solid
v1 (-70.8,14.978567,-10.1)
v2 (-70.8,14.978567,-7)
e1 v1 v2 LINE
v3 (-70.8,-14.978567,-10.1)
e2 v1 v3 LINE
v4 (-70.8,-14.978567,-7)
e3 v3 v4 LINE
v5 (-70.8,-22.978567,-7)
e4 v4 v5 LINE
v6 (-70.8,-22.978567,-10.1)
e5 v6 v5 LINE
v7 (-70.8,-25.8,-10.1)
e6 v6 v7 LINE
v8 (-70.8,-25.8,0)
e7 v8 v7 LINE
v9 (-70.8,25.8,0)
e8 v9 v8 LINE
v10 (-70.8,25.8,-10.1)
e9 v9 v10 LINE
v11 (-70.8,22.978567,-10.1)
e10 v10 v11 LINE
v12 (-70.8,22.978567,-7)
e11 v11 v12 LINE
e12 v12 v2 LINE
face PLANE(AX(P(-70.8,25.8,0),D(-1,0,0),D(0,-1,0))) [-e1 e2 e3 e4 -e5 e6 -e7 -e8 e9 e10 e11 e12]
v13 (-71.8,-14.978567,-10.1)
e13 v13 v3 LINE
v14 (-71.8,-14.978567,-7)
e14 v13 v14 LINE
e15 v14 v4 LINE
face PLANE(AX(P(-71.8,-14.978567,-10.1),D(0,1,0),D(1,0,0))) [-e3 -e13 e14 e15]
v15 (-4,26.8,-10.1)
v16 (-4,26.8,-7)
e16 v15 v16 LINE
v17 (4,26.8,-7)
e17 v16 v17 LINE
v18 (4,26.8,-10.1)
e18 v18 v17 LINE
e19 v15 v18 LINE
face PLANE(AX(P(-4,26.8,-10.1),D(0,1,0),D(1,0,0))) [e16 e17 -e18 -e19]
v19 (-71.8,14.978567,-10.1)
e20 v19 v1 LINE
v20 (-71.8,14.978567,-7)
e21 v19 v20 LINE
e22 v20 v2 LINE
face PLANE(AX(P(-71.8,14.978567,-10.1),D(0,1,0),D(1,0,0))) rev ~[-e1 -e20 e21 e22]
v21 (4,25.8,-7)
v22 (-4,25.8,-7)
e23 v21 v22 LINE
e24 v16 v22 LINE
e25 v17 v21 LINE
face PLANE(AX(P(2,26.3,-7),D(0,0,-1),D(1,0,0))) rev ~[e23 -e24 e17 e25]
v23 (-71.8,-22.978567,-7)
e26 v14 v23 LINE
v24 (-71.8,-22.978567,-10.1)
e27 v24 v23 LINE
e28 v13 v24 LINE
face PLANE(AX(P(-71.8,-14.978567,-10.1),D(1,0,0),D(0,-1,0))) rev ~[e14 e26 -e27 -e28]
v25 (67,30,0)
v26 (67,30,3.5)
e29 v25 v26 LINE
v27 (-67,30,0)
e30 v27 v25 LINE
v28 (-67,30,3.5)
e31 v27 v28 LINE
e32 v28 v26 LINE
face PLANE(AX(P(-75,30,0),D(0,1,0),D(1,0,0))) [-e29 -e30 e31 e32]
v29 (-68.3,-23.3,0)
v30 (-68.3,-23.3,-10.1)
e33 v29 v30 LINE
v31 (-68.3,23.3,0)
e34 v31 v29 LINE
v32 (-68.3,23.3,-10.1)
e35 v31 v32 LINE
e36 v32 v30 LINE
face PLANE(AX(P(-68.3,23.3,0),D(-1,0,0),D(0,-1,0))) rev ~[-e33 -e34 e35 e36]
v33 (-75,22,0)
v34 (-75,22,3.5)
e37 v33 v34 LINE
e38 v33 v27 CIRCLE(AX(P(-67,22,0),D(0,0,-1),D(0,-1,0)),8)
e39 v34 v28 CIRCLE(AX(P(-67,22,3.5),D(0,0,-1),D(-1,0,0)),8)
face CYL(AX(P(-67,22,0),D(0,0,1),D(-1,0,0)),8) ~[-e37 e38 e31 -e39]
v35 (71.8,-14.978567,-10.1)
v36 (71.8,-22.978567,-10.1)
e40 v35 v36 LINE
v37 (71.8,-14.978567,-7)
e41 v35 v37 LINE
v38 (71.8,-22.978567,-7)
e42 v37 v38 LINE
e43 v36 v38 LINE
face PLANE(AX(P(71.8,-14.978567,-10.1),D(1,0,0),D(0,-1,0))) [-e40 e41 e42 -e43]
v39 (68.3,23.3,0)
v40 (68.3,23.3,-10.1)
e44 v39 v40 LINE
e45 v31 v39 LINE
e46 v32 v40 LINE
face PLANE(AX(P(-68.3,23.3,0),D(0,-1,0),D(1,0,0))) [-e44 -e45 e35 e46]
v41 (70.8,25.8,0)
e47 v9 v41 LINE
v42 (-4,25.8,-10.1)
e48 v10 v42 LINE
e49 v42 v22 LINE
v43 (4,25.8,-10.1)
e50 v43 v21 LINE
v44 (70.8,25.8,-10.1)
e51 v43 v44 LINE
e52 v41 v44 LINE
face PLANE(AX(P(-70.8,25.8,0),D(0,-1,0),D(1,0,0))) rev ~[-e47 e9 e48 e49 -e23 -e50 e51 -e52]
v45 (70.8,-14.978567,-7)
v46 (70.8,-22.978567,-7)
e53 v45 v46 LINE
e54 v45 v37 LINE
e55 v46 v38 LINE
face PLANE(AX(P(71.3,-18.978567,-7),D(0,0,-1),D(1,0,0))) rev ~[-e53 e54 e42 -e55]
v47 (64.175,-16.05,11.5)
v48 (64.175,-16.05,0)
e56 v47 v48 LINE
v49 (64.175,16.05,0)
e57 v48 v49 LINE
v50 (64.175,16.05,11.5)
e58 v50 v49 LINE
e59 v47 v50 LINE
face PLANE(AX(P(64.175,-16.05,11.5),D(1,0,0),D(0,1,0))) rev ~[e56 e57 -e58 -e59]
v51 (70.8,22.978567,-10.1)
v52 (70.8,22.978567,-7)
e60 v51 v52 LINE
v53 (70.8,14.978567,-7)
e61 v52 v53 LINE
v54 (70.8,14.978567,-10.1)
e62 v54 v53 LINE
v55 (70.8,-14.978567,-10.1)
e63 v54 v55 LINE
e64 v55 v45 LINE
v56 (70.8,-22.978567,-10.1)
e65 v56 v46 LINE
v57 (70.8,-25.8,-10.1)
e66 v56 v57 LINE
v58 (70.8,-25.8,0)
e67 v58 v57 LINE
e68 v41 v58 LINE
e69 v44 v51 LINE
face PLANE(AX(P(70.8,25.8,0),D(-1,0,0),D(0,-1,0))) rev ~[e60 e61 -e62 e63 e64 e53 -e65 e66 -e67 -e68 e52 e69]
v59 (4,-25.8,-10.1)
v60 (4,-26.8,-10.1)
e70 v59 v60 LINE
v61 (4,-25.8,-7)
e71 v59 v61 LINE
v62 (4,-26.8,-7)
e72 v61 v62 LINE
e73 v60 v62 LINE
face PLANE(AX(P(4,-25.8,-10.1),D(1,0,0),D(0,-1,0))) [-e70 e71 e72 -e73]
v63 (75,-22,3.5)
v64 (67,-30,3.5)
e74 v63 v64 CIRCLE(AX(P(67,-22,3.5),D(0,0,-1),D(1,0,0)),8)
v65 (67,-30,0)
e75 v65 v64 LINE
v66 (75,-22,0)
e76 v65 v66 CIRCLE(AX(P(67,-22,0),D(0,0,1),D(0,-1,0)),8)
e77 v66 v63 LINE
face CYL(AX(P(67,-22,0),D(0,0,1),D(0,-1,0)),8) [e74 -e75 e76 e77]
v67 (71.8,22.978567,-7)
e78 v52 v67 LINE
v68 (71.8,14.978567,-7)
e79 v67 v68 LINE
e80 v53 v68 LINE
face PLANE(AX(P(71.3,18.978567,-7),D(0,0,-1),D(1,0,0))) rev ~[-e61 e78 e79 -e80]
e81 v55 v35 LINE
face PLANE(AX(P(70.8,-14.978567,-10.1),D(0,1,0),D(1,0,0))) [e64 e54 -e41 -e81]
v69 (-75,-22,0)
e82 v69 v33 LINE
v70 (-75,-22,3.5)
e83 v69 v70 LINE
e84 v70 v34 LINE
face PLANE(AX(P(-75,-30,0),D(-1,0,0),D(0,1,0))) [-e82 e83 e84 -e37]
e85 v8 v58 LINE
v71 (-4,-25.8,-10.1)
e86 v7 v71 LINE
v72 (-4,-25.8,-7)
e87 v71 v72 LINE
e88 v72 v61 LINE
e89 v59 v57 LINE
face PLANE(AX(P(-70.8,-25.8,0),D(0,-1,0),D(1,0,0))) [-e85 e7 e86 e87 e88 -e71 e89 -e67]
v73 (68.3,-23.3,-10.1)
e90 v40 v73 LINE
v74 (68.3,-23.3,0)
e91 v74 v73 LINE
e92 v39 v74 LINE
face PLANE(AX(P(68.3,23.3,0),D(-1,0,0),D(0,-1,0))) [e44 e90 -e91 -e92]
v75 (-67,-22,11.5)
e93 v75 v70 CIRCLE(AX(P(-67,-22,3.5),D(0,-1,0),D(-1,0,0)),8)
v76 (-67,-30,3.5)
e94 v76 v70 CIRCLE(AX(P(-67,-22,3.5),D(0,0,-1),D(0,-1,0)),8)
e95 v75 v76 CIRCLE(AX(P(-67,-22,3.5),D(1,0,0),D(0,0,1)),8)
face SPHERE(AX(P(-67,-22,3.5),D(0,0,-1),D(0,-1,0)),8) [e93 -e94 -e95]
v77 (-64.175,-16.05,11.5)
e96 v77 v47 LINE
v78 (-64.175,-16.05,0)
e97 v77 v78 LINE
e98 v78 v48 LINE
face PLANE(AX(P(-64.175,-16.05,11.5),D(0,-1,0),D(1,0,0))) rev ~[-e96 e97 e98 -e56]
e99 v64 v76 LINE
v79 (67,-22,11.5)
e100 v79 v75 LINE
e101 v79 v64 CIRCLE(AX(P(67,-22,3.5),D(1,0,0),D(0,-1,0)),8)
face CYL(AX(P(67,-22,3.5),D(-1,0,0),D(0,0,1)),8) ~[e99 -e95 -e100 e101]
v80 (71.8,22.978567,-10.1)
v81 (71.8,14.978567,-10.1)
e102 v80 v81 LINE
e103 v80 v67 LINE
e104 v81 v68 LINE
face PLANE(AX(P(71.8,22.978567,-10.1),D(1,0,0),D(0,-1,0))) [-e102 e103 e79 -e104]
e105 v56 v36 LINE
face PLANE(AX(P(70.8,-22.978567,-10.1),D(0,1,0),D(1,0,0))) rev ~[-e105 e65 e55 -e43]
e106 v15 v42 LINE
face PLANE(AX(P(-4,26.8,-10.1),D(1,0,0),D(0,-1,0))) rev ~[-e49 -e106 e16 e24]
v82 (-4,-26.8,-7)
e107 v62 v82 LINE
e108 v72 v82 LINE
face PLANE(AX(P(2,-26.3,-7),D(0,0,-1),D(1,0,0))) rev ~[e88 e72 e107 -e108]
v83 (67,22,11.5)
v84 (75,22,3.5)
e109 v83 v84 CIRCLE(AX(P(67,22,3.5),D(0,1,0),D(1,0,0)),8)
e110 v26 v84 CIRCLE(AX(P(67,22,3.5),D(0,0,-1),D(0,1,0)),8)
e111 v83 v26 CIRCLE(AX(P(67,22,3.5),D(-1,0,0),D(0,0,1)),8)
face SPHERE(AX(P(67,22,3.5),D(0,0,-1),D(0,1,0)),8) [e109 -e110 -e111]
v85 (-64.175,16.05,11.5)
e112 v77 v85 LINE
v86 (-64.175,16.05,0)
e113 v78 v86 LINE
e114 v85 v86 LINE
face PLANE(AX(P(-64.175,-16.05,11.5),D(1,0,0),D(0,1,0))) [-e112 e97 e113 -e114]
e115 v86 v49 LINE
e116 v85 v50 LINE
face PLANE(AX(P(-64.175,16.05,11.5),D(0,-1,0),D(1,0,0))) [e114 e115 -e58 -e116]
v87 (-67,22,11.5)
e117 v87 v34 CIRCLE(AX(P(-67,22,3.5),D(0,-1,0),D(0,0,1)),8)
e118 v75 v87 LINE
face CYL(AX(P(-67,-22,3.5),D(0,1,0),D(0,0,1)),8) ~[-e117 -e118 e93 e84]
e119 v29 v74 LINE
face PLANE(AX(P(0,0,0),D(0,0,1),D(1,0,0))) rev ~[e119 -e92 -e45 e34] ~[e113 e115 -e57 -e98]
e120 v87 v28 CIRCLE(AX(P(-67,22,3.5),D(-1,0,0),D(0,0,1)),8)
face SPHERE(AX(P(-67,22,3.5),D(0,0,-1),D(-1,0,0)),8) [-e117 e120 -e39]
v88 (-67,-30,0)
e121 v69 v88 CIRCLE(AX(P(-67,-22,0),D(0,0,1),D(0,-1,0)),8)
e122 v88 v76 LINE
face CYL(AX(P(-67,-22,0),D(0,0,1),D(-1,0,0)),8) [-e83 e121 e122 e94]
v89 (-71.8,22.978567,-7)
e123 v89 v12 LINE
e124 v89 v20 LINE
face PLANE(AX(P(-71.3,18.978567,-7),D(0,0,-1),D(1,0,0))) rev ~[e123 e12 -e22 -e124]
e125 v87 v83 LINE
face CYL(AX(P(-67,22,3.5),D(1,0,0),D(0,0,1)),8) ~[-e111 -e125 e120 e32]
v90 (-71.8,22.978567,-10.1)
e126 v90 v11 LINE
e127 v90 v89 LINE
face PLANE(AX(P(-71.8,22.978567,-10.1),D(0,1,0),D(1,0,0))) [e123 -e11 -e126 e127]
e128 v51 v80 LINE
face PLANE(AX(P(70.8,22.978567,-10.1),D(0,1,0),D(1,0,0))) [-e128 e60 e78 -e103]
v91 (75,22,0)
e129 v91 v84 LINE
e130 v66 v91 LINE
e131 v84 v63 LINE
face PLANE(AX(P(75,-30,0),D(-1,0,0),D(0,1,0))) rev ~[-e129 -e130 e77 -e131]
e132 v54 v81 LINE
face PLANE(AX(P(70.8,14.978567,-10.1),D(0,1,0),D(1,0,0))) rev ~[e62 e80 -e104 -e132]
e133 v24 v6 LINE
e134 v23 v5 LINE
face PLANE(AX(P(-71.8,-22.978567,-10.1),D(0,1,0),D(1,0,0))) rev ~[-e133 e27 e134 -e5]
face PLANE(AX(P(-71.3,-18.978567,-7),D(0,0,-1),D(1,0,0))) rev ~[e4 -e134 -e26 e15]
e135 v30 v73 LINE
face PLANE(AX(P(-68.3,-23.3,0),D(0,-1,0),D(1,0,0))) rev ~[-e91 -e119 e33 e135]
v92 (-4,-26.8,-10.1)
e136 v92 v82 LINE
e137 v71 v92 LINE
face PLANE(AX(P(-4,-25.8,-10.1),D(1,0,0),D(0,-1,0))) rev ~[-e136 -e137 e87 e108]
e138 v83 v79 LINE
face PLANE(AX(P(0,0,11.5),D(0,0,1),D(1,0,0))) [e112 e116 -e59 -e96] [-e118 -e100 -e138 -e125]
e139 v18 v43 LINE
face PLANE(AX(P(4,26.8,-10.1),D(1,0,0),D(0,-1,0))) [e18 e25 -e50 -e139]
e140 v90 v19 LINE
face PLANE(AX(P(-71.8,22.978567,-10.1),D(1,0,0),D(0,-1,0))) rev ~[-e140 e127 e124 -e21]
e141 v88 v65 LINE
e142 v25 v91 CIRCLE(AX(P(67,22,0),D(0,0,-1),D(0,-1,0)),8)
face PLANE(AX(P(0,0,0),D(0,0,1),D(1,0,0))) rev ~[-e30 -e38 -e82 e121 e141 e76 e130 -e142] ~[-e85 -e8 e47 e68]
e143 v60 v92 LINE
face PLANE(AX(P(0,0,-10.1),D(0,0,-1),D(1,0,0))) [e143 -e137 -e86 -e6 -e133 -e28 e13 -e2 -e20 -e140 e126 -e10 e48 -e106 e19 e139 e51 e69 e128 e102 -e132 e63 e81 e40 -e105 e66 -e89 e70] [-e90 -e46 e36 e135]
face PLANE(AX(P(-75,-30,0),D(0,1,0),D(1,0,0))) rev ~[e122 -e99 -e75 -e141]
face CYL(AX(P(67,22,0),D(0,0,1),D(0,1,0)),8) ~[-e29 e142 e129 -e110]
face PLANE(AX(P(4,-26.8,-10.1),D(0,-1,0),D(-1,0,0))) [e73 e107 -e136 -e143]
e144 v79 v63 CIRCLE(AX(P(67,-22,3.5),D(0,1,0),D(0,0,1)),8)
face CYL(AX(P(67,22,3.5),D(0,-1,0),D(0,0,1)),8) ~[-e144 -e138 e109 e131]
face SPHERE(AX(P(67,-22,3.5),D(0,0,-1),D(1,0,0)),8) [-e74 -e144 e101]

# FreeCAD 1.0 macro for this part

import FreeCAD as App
import Part
import Sketcher

V = App.Vector


def edges_at(feature, points):
    """Names of the edges that pass closest to the given points."""
    edges = feature.Shape.Edges
    near = lambda p: min(range(len(edges)), key=lambda i: edges[i].distToShape(Part.Vertex(*p))[0])
    return sorted({f"Edge{near(p) + 1}" for p in points})


def add_polygon(sketch, points):
    """Adds a closed chain of lines whose ends are joined by coincident constraints."""
    first, n = sketch.GeometryCount, len(points)
    for a, b in zip(points, points[1:] + points[:1]):
        sketch.addGeometry(Part.LineSegment(App.Vector(*a, 0), App.Vector(*b, 0)), False)
    for i in range(n):
        sketch.addConstraint(Sketcher.Constraint("Coincident", first + i, 2, first + (i + 1) % n, 1))

doc = App.newDocument("Part")
body = doc.addObject("PartDesign::Body", "Body")

sketch1 = body.newObject("Sketcher::SketchObject", "Sketch")
sketch1.AttachmentSupport = (doc.getObject("XY_Plane"), [""])
sketch1.MapMode = "FlatFace"
add_polygon(sketch1, [(-75, 30), (-75, -30), (75, -30), (75, 30)])
sketch1.addConstraint([
    Sketcher.Constraint("Vertical", 0),
    Sketcher.Constraint("Horizontal", 1),
    Sketcher.Constraint("Vertical", 2),
    Sketcher.Constraint("Horizontal", 3),
    Sketcher.Constraint("Symmetric", 0, 2, 2, 2, -1, 1),
    Sketcher.Constraint("DistanceX", 1, 1, 1, 2, 150.0),
    Sketcher.Constraint("DistanceY", 0, 2, 0, 1, 60.0),
])
pad1 = body.newObject("PartDesign::Pad", "Pad")
pad1.Profile = sketch1
pad1.Length = 11.5

sketch2 = body.newObject("Sketcher::SketchObject", "Sketch001")
sketch2.AttachmentSupport = (doc.getObject("XY_Plane"), [""])
sketch2.MapMode = "FlatFace"
sketch2.AttachmentOffset = App.Placement(V(0, 0, 11.5), App.Rotation())
add_polygon(sketch2, [(-64, 16), (-64, -16), (64, -16), (64, 16)])
sketch2.addConstraint([
    Sketcher.Constraint("Vertical", 0),
    Sketcher.Constraint("Horizontal", 1),
    Sketcher.Constraint("Vertical", 2),
    Sketcher.Constraint("Horizontal", 3),
    Sketcher.Constraint("Symmetric", 0, 2, 2, 2, -1, 1),
    Sketcher.Constraint("DistanceY", 0, 2, 0, 1, 32.1),
    Sketcher.Constraint("DistanceX", 1, 1, 1, 2, 128.35),
])
pocket1 = body.newObject("PartDesign::Pocket", "Pocket")
pocket1.Profile = sketch2
pocket1.Type = "ThroughAll"
doc.recompute()

fillet = body.newObject("PartDesign::Fillet", "Fillet")
fillet.Base = (pocket1, edges_at(pocket1, [
    (-75, 30, 5.75),
    (75, 30, 5.75),
    (75, -30, 5.75),
    (-75, -30, 5.75),
]))
fillet.Radius = 8

sketch3 = body.newObject("Sketcher::SketchObject", "Sketch002")
sketch3.AttachmentSupport = (doc.getObject("XY_Plane"), [""])
sketch3.MapMode = "FlatFace"
add_polygon(sketch3, [(-71, -26), (-71, 26), (71, 26), (71, -26)])
add_polygon(sketch3, [(68, 23), (-68, 23), (-68, -23), (68, -23)])
sketch3.addConstraint([
    Sketcher.Constraint("Vertical", 0),
    Sketcher.Constraint("Horizontal", 1),
    Sketcher.Constraint("Vertical", 2),
    Sketcher.Constraint("Horizontal", 3),
    Sketcher.Constraint("Horizontal", 4),
    Sketcher.Constraint("Vertical", 5),
    Sketcher.Constraint("Horizontal", 6),
    Sketcher.Constraint("Vertical", 7),
    Sketcher.Constraint("Symmetric", 0, 2, 2, 2, -1, 1),
    Sketcher.Constraint("Symmetric", 4, 2, 6, 2, -1, 1),
    Sketcher.Constraint("DistanceX", 1, 1, 1, 2, 141.6),
    Sketcher.Constraint("DistanceX", 4, 2, 4, 1, 136.6),
    Sketcher.Constraint("DistanceY", 0, 1, 0, 2, 51.6),
    Sketcher.Constraint("DistanceY", 5, 2, 5, 1, 46.6),
])
pad2 = body.newObject("PartDesign::Pad", "Pad001")
pad2.Profile = sketch3
pad2.Length = 10.1
pad2.Reversed = True
doc.recompute()

fillet2 = body.newObject("PartDesign::Fillet", "Fillet001")
fillet2.Base = (pad2, edges_at(pad2, [(0, 30, 11.5)]))
fillet2.Radius = 8

sketch4 = body.newObject("Sketcher::SketchObject", "Sketch003")
sketch4.AttachmentSupport = (doc.getObject("XY_Plane"), [""])
sketch4.MapMode = "FlatFace"
sketch4.AttachmentOffset = App.Placement(V(0, 0, -10.1), App.Rotation())
add_polygon(sketch4, [(-71.8, -23), (-71.8, -15), (-70.8, -15), (-70.8, -23)])
add_polygon(sketch4, [(70.8, -23), (70.8, -15), (71.8, -15), (71.8, -23)])
add_polygon(sketch4, [(-71.8, 15), (-71.8, 23), (-70.8, 23), (-70.8, 15)])
add_polygon(sketch4, [(70.8, 15), (70.8, 23), (71.8, 23), (71.8, 15)])
add_polygon(sketch4, [(4, -25.8), (4, -26.8), (-4, -26.8), (-4, -25.8)])
add_polygon(sketch4, [(4, 26.8), (4, 25.8), (-4, 25.8), (-4, 26.8)])
sketch4.addConstraint([
    Sketcher.Constraint("Vertical", 0),
    Sketcher.Constraint("Horizontal", 1),
    Sketcher.Constraint("Vertical", 2),
    Sketcher.Constraint("Horizontal", 3),
    Sketcher.Constraint("Vertical", 4),
    Sketcher.Constraint("Horizontal", 5),
    Sketcher.Constraint("Vertical", 6),
    Sketcher.Constraint("Horizontal", 7),
    Sketcher.Constraint("Vertical", 8),
    Sketcher.Constraint("Horizontal", 9),
    Sketcher.Constraint("Vertical", 10),
    Sketcher.Constraint("Horizontal", 11),
    Sketcher.Constraint("Vertical", 12),
    Sketcher.Constraint("Horizontal", 13),
    Sketcher.Constraint("Vertical", 14),
    Sketcher.Constraint("Horizontal", 15),
    Sketcher.Constraint("Vertical", 16),
    Sketcher.Constraint("Horizontal", 17),
    Sketcher.Constraint("Vertical", 18),
    Sketcher.Constraint("Horizontal", 19),
    Sketcher.Constraint("Vertical", 20),
    Sketcher.Constraint("Horizontal", 21),
    Sketcher.Constraint("Vertical", 22),
    Sketcher.Constraint("Horizontal", 23),
    Sketcher.Constraint("Symmetric", 6, 2, 8, 2, -1, 1),
    Sketcher.Constraint("Symmetric", 4, 2, 10, 2, -1, 1),
    Sketcher.Constraint("Symmetric", 2, 2, 12, 2, -1, 1),
    Sketcher.Constraint("Symmetric", 0, 2, 14, 2, -1, 1),
    Sketcher.Constraint("Symmetric", 18, 2, 20, 2, -1, 1),
    Sketcher.Constraint("Symmetric", 16, 2, 22, 2, -1, 1),
    Sketcher.Constraint("Symmetric", 1, 2, 4, 2, -2),
    Sketcher.Constraint("Symmetric", 3, 2, 6, 2, -2),
    Sketcher.Constraint("Vertical", 19, 2, 20, 2),
    Sketcher.Constraint("Equal", 23, 0),
    Sketcher.Constraint("Equal", 15, 16),
    Sketcher.Constraint("DistanceX", 1, 1, 1, 2, 1.0),
    Sketcher.Constraint("DistanceX", 17, 2, 17, 1, 8.0),
    Sketcher.Constraint("DistanceX", 0, 2, -1, 1, 71.8),
    Sketcher.Constraint("DistanceY", 16, 2, -1, 1, 26.8),
    Sketcher.Constraint("DistanceY", 0, 2, -1, 1, 14.978567),
])
pad3 = body.newObject("PartDesign::Pad", "Pad002")
pad3.Profile = sketch4
pad3.Length = 3.1

doc.recompute()
